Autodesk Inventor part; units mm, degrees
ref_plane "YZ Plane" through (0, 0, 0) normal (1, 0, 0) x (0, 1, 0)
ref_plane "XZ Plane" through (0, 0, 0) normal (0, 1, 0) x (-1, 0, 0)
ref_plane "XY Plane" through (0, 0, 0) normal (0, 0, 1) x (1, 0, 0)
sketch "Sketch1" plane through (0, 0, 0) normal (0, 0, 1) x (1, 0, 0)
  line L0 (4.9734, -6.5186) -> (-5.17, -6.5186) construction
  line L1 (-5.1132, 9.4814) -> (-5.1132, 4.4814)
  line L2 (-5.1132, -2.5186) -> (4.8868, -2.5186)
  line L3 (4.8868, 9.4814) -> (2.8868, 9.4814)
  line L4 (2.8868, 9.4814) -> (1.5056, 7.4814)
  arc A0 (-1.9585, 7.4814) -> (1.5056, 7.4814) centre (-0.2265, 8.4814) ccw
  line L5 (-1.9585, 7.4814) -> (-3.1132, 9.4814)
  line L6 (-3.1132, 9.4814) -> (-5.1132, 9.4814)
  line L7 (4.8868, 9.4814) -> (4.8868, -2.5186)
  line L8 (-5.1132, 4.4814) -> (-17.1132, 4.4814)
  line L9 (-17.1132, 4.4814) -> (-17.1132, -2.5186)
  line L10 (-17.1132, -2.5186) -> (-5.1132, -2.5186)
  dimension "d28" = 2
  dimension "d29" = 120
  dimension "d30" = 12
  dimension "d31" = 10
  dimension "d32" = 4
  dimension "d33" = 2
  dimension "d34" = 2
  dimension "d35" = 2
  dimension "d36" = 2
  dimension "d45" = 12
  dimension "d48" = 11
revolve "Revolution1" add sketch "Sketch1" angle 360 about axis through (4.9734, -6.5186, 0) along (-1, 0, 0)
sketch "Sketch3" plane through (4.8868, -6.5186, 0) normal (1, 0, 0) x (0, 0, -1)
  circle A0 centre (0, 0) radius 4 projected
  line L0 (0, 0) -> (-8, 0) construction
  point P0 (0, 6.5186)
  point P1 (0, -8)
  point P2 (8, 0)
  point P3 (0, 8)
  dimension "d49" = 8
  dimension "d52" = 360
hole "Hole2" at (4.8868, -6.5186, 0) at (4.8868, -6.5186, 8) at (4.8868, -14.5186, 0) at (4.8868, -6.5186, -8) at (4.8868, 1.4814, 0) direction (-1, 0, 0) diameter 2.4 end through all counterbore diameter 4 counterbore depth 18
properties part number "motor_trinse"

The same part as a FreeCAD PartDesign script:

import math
import FreeCAD as App
import Part
import Sketcher
Q = App.Units.Quantity

doc = App.newDocument("Part")
body = doc.addObject("PartDesign::Body", "Body")

sketch1 = body.newObject("Sketcher::SketchObject", "Sketch")
sketch1.AttachmentSupport = (doc.getObject("XY_Plane"), [""])
sketch1.MapMode = "FlatFace"
sketch1.addGeometry(Part.LineSegment(App.Vector(-3.1, 9.5, 0), App.Vector(-5.1, 9.5, 0)), False)
sketch1.addGeometry(Part.LineSegment(App.Vector(-5.1, 9.5, 0), App.Vector(-5.1, 4.5, 0)), False)
sketch1.addGeometry(Part.LineSegment(App.Vector(-5.1, 4.5, 0), App.Vector(-17.1, 4.5, 0)), False)
sketch1.addGeometry(Part.LineSegment(App.Vector(-17.1, 4.5, 0), App.Vector(-17.1, -2.5, 0)), False)
sketch1.addGeometry(Part.LineSegment(App.Vector(-17.1, -2.5, 0), App.Vector(4.9, -2.5, 0)), False)
sketch1.addGeometry(Part.LineSegment(App.Vector(4.9, -2.5, 0), App.Vector(4.9, 9.5, 0)), False)
sketch1.addGeometry(Part.LineSegment(App.Vector(4.9, 9.5, 0), App.Vector(2.9, 9.5, 0)), False)
sketch1.addGeometry(Part.LineSegment(App.Vector(2.9, 9.5, 0), App.Vector(1.5, 7.5, 0)), False)
sketch1.addGeometry(Part.ArcOfCircle(Part.Circle(App.Vector(-0.2, 8.5, 0), App.Vector(0, 0, 1), 2), math.radians(-150), math.radians(-30)), False)
sketch1.addGeometry(Part.LineSegment(App.Vector(-2, 7.5, 0), App.Vector(-3.1, 9.5, 0)), False)
sketch1.addGeometry(Part.LineSegment(App.Vector(4.9, -6.5, 0), App.Vector(-17.1, -6.5, 0)), True)
sketch1.addConstraint(Sketcher.Constraint("Coincident", 0, 2, 1, 1))
sketch1.addConstraint(Sketcher.Constraint("Coincident", 1, 2, 2, 1))
sketch1.addConstraint(Sketcher.Constraint("Coincident", 2, 2, 3, 1))
sketch1.addConstraint(Sketcher.Constraint("Coincident", 3, 2, 4, 1))
sketch1.addConstraint(Sketcher.Constraint("Coincident", 4, 2, 5, 1))
sketch1.addConstraint(Sketcher.Constraint("Coincident", 5, 2, 6, 1))
sketch1.addConstraint(Sketcher.Constraint("Coincident", 6, 2, 7, 1))
sketch1.addConstraint(Sketcher.Constraint("Coincident", 7, 2, 8, 2))
sketch1.addConstraint(Sketcher.Constraint("Tangent", 8, 1, 9, 1))
sketch1.addConstraint(Sketcher.Constraint("Coincident", 9, 2, 0, 1))
sketch1.addConstraint(Sketcher.Constraint("Horizontal", 0))
sketch1.addConstraint(Sketcher.Constraint("Vertical", 1))
sketch1.addConstraint(Sketcher.Constraint("Horizontal", 2))
sketch1.addConstraint(Sketcher.Constraint("Vertical", 3))
sketch1.addConstraint(Sketcher.Constraint("Horizontal", 4))
sketch1.addConstraint(Sketcher.Constraint("Vertical", 5))
sketch1.addConstraint(Sketcher.Constraint("Horizontal", 6))
sketch1.addConstraint(Sketcher.Constraint("Horizontal", 10))
sketch1.addConstraint(Sketcher.Constraint("Horizontal", 0, 2, 5, 2))
sketch1.addConstraint(Sketcher.Constraint("Horizontal", 7, 2, 8, 1))
sketch1.addConstraint(Sketcher.Constraint("Vertical", 5, 2, 10, 1))
sketch1.addConstraint(Sketcher.Constraint("Vertical", 3, 2, 10, 2))
sketch1.addConstraint(Sketcher.Constraint("Equal", 0, 6))
sketch1.addConstraint(Sketcher.Constraint("Equal", 2, 5))
sketch1.addConstraint(Sketcher.Constraint("Radius", 8, 2.0))
sketch1.addConstraint(Sketcher.Constraint("DistanceX", 0, 2, 0, 1, 2.0))
sketch1.addConstraint(Sketcher.Constraint("DistanceX", 2, 2, 2, 1, 12.0))
sketch1.addConstraint(Sketcher.Constraint("Angle", 9, Q("120 deg")))
sketch1.addConstraint(Sketcher.Constraint("DistanceY", 1, 2, 8, 3, 4.0))
sketch1.addConstraint(Sketcher.Constraint("DistanceY", 3, 2, 8, 3, 11.0))
sketch1.addConstraint(Sketcher.Constraint("DistanceX", 1, 2, 4, 2, 10.0))
sketch1.addConstraint(Sketcher.Constraint("DistanceY", 10, 1, 4, 2, 4.0))
sketch1.addConstraint(Sketcher.Constraint("DistanceX", 8, 3, -1, 1, 0.2265))
sketch1.addConstraint(Sketcher.Constraint("DistanceY", -1, 1, 8, 3, 8.4814))
revolution = body.newObject("PartDesign::Revolution", "Revolution")
revolution.Profile = sketch1
revolution.ReferenceAxis = (sketch1, ["Axis0"])
revolution.Angle = 360

sketch2 = body.newObject("Sketcher::SketchObject", "Sketch001")
sketch2.AttachmentSupport = (doc.getObject("YZ_Plane"), [""])
sketch2.MapMode = "FlatFace"
sketch2.AttachmentOffset = App.Placement(App.Vector(0, 0, 4.8868), App.Rotation())
sketch2.addGeometry(Part.Circle(App.Vector(-6.5, 0, 0), App.Vector(0, 0, 1), 1.2), False)
sketch2.addGeometry(Part.Circle(App.Vector(-6.5, 8, 0), App.Vector(0, 0, 1), 1.2), False)
sketch2.addGeometry(Part.Circle(App.Vector(-14.5, 0, 0), App.Vector(0, 0, 1), 1.2), False)
sketch2.addGeometry(Part.Circle(App.Vector(-6.5, -8, 0), App.Vector(0, 0, 1), 1.2), False)
sketch2.addGeometry(Part.Circle(App.Vector(1.5, 0, 0), App.Vector(0, 0, 1), 1.2), False)
sketch2.addConstraint(Sketcher.Constraint("Equal", 0, 1))
sketch2.addConstraint(Sketcher.Constraint("Equal", 1, 2))
sketch2.addConstraint(Sketcher.Constraint("Equal", 2, 3))
sketch2.addConstraint(Sketcher.Constraint("Equal", 3, 4))
sketch2.addConstraint(Sketcher.Constraint("Symmetric", 1, 3, 3, 3, -1))
sketch2.addConstraint(Sketcher.Constraint("PointOnObject", 0, 3, -1))
sketch2.addConstraint(Sketcher.Constraint("PointOnObject", 2, 3, -1))
sketch2.addConstraint(Sketcher.Constraint("PointOnObject", 4, 3, -1))
sketch2.addConstraint(Sketcher.Constraint("Vertical", 0, 3, 1, 3))
sketch2.addConstraint(Sketcher.Constraint("Diameter", 0, 2.4))
sketch2.addConstraint(Sketcher.Constraint("DistanceY", -1, 1, 1, 3, 8.0))
sketch2.addConstraint(Sketcher.Constraint("DistanceX", 2, 3, 0, 3, 8.0))
sketch2.addConstraint(Sketcher.Constraint("DistanceX", 0, 3, 4, 3, 8.0))
sketch2.addConstraint(Sketcher.Constraint("DistanceX", 0, 3, -1, 1, 6.5186))
doc.recompute()
hole = body.newObject("PartDesign::Hole", "Hole")
hole.Profile = sketch2
hole.ThreadType = "None"
hole.Diameter = 2.4
hole.DepthType = "ThroughAll"
hole.HoleCutType = "Counterbore"
hole.HoleCutDiameter = 4
hole.HoleCutDepth = 18

doc.recompute()
